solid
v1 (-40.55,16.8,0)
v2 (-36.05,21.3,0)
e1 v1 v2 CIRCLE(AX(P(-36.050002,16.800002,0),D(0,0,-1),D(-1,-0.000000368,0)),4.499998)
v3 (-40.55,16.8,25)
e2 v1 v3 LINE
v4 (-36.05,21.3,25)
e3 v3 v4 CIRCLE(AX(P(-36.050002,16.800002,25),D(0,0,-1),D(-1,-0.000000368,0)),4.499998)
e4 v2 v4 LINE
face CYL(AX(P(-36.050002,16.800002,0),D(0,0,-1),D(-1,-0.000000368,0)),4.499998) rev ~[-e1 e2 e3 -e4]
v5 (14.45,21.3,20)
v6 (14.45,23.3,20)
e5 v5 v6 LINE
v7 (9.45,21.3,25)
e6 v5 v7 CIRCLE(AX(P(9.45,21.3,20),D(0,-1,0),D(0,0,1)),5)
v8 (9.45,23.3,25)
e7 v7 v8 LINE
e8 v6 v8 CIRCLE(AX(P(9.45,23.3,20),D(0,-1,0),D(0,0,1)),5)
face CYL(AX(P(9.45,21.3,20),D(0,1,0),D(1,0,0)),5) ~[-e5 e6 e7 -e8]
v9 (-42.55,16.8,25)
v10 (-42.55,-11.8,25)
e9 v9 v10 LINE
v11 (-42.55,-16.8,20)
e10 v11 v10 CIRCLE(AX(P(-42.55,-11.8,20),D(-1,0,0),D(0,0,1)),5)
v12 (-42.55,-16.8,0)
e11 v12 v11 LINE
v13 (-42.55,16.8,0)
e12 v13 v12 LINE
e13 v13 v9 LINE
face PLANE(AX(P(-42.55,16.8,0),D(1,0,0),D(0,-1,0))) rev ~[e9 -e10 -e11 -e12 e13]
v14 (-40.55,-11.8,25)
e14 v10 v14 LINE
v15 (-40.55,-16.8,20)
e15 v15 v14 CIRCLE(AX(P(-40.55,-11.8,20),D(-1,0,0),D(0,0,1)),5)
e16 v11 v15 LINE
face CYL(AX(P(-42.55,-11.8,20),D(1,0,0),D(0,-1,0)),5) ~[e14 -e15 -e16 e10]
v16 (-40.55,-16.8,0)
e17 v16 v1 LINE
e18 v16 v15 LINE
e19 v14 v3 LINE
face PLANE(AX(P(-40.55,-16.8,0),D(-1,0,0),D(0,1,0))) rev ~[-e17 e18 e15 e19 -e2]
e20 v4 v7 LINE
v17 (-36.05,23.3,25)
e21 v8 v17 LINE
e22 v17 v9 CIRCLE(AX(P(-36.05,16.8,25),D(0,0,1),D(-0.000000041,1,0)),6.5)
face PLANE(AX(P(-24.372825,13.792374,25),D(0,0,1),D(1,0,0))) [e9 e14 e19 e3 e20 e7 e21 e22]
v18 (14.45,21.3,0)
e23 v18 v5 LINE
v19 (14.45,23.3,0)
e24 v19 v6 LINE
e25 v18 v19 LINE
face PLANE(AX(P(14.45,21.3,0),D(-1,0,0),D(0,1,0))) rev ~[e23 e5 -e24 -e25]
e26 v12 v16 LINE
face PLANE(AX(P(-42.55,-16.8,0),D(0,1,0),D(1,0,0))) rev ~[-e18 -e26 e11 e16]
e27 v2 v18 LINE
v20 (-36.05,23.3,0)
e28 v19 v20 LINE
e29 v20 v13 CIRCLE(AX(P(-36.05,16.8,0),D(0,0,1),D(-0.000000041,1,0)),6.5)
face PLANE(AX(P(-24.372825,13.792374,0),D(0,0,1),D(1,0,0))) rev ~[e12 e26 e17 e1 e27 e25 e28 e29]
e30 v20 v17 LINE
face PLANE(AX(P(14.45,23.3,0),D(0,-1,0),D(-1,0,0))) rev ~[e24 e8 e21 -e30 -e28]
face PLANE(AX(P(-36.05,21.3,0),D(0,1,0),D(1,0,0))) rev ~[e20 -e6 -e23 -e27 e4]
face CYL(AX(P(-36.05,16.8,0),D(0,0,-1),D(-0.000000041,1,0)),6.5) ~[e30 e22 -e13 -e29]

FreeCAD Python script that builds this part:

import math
import FreeCAD as App
import Part
import Sketcher

V = App.Vector
Q = App.Units.Quantity


def edges_at(feature, points):
    """Names of the edges that pass closest to the given points."""
    edges = feature.Shape.Edges
    near = lambda p: min(range(len(edges)), key=lambda i: edges[i].distToShape(Part.Vertex(*p))[0])
    return sorted({f"Edge{near(p) + 1}" for p in points})

doc = App.newDocument("Part")
params = doc.addObject("Spreadsheet::Sheet", "Params")
for row, (alias, value) in enumerate([
    ("sketch1_radius", "6.5 mm"),
    ("sketch1_radius2", "4.499998 mm"),
    ("sketch1_width", "50.5 mm"),
    ("sketch1_height", "33.6 mm"),
    ("pad1_length", "25 mm"),
    ("fillet_radius", "5 mm"),
], start=1):
    params.set(f"A{row}", alias)
    params.set(f"B{row}", "=" + value)
    params.setAlias(f"B{row}", alias)

body = doc.addObject("PartDesign::Body", "Body")

sketch1 = body.newObject("Sketcher::SketchObject", "Sketch")
sketch1.AttachmentSupport = (doc.getObject("XY_Plane"), [""])
sketch1.MapMode = "FlatFace"
sketch1.addGeometry(Part.LineSegment(V(-36, 21.3, 0), V(14.4, 21.3, 0)), False)
sketch1.addGeometry(Part.LineSegment(V(14.4, 21.3, 0), V(14.4, 23.3, 0)), False)
sketch1.addGeometry(Part.LineSegment(V(14.4, 23.3, 0), V(-36, 23.3, 0)), False)
sketch1.addGeometry(Part.ArcOfCircle(Part.Circle(V(-36, 16.8, 0), V(0, 0, 1), 6.5), math.radians(90), math.radians(180)), False)
sketch1.addGeometry(Part.LineSegment(V(-42.5, 16.8, 0), V(-42.5, -16.8, 0)), False)
sketch1.addGeometry(Part.LineSegment(V(-42.5, -16.8, 0), V(-40.5, -16.8, 0)), False)
sketch1.addGeometry(Part.LineSegment(V(-40.5, -16.8, 0), V(-40.5, 16.8, 0)), False)
sketch1.addGeometry(Part.ArcOfCircle(Part.Circle(V(-36.1, 16.8, 0), V(0, 0, 1), 4.5), math.radians(90), math.radians(180)), False)
sketch1.addConstraint(Sketcher.Constraint("Coincident", 0, 2, 1, 1))
sketch1.addConstraint(Sketcher.Constraint("Coincident", 1, 2, 2, 1))
sketch1.addConstraint(Sketcher.Constraint("Tangent", 2, 2, 3, 1))
sketch1.addConstraint(Sketcher.Constraint("Tangent", 3, 2, 4, 1))
sketch1.addConstraint(Sketcher.Constraint("Coincident", 4, 2, 5, 1))
sketch1.addConstraint(Sketcher.Constraint("Coincident", 5, 2, 6, 1))
sketch1.addConstraint(Sketcher.Constraint("Tangent", 6, 2, 7, 2))
sketch1.addConstraint(Sketcher.Constraint("Tangent", 7, 1, 0, 1))
sketch1.addConstraint(Sketcher.Constraint("Horizontal", 0))
sketch1.addConstraint(Sketcher.Constraint("Vertical", 1))
sketch1.addConstraint(Sketcher.Constraint("Horizontal", 2))
sketch1.addConstraint(Sketcher.Constraint("Vertical", 4))
sketch1.addConstraint(Sketcher.Constraint("Horizontal", 5))
sketch1.addConstraint(Sketcher.Constraint("Vertical", 6))
sketch1.addConstraint(Sketcher.Constraint("Coincident", 7, 3, 3, 3))
sketch1.addConstraint(Sketcher.Constraint("Radius", 3, Q("6.5 mm")))
sketch1.addConstraint(Sketcher.Constraint("Radius", 7, Q("4.499998 mm")))
sketch1.addConstraint(Sketcher.Constraint("DistanceX", 0, 1, 0, 2, Q("50.5 mm")))
sketch1.addConstraint(Sketcher.Constraint("DistanceY", 4, 2, 4, 1, Q("33.6 mm")))
sketch1.addConstraint(Sketcher.Constraint("DistanceY", -1, 1, 3, 3, Q("16.8 mm")))
sketch1.addConstraint(Sketcher.Constraint("DistanceX", 3, 3, -1, 1, Q("36.05 mm")))
sketch1.setExpression("Constraints[15]", "Params.sketch1_radius")
sketch1.setExpression("Constraints[16]", "Params.sketch1_radius2")
sketch1.setExpression("Constraints[17]", "Params.sketch1_width")
sketch1.setExpression("Constraints[18]", "Params.sketch1_height")
pad1 = body.newObject("PartDesign::Pad", "Pad")
pad1.Profile = sketch1
pad1.setExpression("Length", "Params.pad1_length")
doc.recompute()

fillet = body.newObject("PartDesign::Fillet", "Fillet")
fillet.Base = (pad1, edges_at(pad1, [(-41.55, -16.8, 25), (14.45, 22.3, 25)]))
fillet.setExpression("Radius", "Params.fillet_radius")

doc.recompute()
